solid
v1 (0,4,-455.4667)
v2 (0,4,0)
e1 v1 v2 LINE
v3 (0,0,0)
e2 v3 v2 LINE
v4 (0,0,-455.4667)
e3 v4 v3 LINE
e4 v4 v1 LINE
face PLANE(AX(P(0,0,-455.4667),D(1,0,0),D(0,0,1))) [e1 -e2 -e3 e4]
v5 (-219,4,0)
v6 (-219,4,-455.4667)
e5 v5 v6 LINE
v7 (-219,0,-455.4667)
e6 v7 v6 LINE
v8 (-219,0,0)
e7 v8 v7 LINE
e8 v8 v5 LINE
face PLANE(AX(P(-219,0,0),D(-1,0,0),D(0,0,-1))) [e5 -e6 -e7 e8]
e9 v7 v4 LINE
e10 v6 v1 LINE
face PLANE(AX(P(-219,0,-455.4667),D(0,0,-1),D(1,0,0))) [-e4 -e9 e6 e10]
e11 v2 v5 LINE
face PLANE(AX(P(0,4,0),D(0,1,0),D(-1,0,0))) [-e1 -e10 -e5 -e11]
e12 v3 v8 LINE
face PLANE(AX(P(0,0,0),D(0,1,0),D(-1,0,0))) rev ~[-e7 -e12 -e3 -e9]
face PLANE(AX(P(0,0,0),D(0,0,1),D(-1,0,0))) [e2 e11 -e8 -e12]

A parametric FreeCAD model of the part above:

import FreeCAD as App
import Part
import Sketcher
from FreeCAD import Vector
Q = App.Units.Quantity

doc = App.newDocument("Part")
body = doc.addObject("PartDesign::Body", "Body")

sketch1 = body.newObject("Sketcher::SketchObject", "Sketch")
sketch1.AttachmentSupport = (doc.getObject("XZ_Plane"), [""])
sketch1.MapMode = "FlatFace"
sketch1.addGeometry(Part.LineSegment(Vector(-219, 0, 0), Vector(0, 0, 0)), False)
sketch1.addGeometry(Part.LineSegment(Vector(0, 0, 0), Vector(0, -455.4667, 0)), False)
sketch1.addGeometry(Part.LineSegment(Vector(0, -455.4667, 0), Vector(-219, -455.4667, 0)), False)
sketch1.addGeometry(Part.LineSegment(Vector(-219, -455.4667, 0), Vector(-219, 0, 0)), False)
sketch1.addConstraint(Sketcher.Constraint("Coincident", 0, 2, 1, 1))
sketch1.addConstraint(Sketcher.Constraint("Coincident", 1, 2, 2, 1))
sketch1.addConstraint(Sketcher.Constraint("Coincident", 2, 2, 3, 1))
sketch1.addConstraint(Sketcher.Constraint("Coincident", 3, 2, 0, 1))
sketch1.addConstraint(Sketcher.Constraint("Horizontal", 0))
sketch1.addConstraint(Sketcher.Constraint("Vertical", 1))
sketch1.addConstraint(Sketcher.Constraint("Horizontal", 2))
sketch1.addConstraint(Sketcher.Constraint("Vertical", 3))
sketch1.addConstraint(Sketcher.Constraint("Coincident", 0, 2, -1, 1))
sketch1.addConstraint(Sketcher.Constraint("DistanceX", 0, 1, 0, 2, Q("219 mm")))
sketch1.addConstraint(Sketcher.Constraint("DistanceY", 1, 2, 1, 1, Q("455.4667 mm")))
pad1 = body.newObject("PartDesign::Pad", "Pad")
pad1.Profile = sketch1
pad1.Length = 4
pad1.Reversed = True

doc.recompute()
